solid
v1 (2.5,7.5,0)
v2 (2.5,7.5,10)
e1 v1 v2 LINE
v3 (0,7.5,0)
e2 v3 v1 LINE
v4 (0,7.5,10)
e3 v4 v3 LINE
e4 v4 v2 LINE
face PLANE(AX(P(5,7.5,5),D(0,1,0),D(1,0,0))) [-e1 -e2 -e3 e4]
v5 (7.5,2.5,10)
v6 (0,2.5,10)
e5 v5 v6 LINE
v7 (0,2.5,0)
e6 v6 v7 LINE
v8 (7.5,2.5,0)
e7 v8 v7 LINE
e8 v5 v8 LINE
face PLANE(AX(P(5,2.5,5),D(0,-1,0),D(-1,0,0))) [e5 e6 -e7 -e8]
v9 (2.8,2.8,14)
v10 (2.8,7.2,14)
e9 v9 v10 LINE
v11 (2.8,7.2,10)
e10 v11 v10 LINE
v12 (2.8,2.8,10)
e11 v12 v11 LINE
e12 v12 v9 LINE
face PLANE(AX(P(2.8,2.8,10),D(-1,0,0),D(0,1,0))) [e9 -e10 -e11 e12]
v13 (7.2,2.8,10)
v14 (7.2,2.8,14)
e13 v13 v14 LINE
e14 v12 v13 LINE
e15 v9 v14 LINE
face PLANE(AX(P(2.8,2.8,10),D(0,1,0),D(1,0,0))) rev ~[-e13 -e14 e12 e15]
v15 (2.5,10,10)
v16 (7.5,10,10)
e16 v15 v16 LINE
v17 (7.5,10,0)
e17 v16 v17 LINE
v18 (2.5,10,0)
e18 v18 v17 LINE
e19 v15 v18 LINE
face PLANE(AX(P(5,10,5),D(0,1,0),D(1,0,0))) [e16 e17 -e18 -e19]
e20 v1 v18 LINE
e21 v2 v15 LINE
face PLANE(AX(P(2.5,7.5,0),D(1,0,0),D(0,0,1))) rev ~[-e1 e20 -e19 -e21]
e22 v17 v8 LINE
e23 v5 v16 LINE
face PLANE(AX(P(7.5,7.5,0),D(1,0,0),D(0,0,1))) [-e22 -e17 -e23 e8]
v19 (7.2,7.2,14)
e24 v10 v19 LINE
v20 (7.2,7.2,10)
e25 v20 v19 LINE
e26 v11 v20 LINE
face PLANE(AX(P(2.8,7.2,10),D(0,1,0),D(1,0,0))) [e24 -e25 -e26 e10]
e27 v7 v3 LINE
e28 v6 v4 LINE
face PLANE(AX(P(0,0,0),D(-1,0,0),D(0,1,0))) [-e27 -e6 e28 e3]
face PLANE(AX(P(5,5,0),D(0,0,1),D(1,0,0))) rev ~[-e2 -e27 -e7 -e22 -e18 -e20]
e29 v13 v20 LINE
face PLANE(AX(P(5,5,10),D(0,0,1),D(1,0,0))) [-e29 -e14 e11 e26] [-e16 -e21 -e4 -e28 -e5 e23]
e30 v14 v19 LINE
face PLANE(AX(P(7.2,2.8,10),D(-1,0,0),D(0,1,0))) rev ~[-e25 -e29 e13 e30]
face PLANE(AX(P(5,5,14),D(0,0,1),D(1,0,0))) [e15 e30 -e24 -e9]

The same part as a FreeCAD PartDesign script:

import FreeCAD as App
import Part
import Sketcher
Q = App.Units.Quantity

doc = App.newDocument("Part")
params = doc.addObject("Spreadsheet::Sheet", "Params")
for row, (alias, value) in enumerate([
    ("sketch1_width", "10 mm"),
    ("pad1_length", "10 mm"),
    ("sketch2_width", "4.4 mm"),
    ("pad2_length", "4 mm"),
    ("sketch3_width", "10 mm"),
    ("pocket1_length", "2.5 mm"),
    ("sketch4_width", "10 mm"),
    ("pocket2_length", "2.5 mm"),
    ("sketch5_width", "5 mm"),
    ("sketch5_height", "10 mm"),
    ("pad3_length", "10 mm"),
    ("sketch6_width", "4.4 mm"),
    ("pad4_length", "4 mm"),
    ("sketch7_width", "4.4 mm"),
    ("pocket3_length", "5 mm"),
    ("sketch8_width", "5 mm"),
    ("sketch8_height", "10 mm"),
    ("pocket4_length", "7.5 mm"),
    ("sketch9_height", "10 mm"),
    ("sketch9_width", "2.5 mm"),
    ("pocket5_length", "5 mm"),
], start=1):
    params.set(f"A{row}", alias)
    params.set(f"B{row}", "=" + value)
    params.setAlias(f"B{row}", alias)

body = doc.addObject("PartDesign::Body", "Body")

# Sketch on XY plane
sketch1 = doc.addObject("Sketcher::SketchObject", "Sketch")
body.addObject(sketch1)
sketch1.AttachmentSupport = (doc.XY_Plane, [""])
sketch1.MapMode = "FlatFace"
sketch1.addGeometry(Part.LineSegment(App.Vector(0, 10, 0), App.Vector(0, 0, 0)), False)
sketch1.addGeometry(Part.LineSegment(App.Vector(0, 0, 0), App.Vector(10, 0, 0)), False)
sketch1.addGeometry(Part.LineSegment(App.Vector(10, 0, 0), App.Vector(10, 10, 0)), False)
sketch1.addGeometry(Part.LineSegment(App.Vector(10, 10, 0), App.Vector(0, 10, 0)), False)
sketch1.addConstraint(Sketcher.Constraint("Coincident", 0, 2, 1, 1))
sketch1.addConstraint(Sketcher.Constraint("Coincident", 1, 2, 2, 1))
sketch1.addConstraint(Sketcher.Constraint("Coincident", 2, 2, 3, 1))
sketch1.addConstraint(Sketcher.Constraint("Coincident", 3, 2, 0, 1))
sketch1.addConstraint(Sketcher.Constraint("Vertical", 0))
sketch1.addConstraint(Sketcher.Constraint("Horizontal", 1))
sketch1.addConstraint(Sketcher.Constraint("Vertical", 2))
sketch1.addConstraint(Sketcher.Constraint("Horizontal", 3))
sketch1.addConstraint(Sketcher.Constraint("Coincident", 0, 2, -1, 1))
sketch1.addConstraint(Sketcher.Constraint("Equal", 3, 0))
sketch1.addConstraint(Sketcher.Constraint("DistanceX", 1, 1, 1, 2, Q("10 mm")))
sketch1.setExpression("Constraints[10]", "Params.sketch1_width")
pad1 = doc.addObject("PartDesign::Pad", "Pad")
body.addObject(pad1)
pad1.Profile = sketch1
pad1.setExpression("Length", "Params.pad1_length")

# Sketch on XY plane
sketch2 = doc.addObject("Sketcher::SketchObject", "Sketch001")
body.addObject(sketch2)
sketch2.AttachmentSupport = (doc.XY_Plane, [""])
sketch2.MapMode = "FlatFace"
sketch2.AttachmentOffset = App.Placement(App.Vector(0, 0, 10), App.Rotation())
sketch2.addGeometry(Part.LineSegment(App.Vector(2.8, 7.2, 0), App.Vector(2.8, 2.8, 0)), False)
sketch2.addGeometry(Part.LineSegment(App.Vector(2.8, 2.8, 0), App.Vector(7.2, 2.8, 0)), False)
sketch2.addGeometry(Part.LineSegment(App.Vector(7.2, 2.8, 0), App.Vector(7.2, 7.2, 0)), False)
sketch2.addGeometry(Part.LineSegment(App.Vector(7.2, 7.2, 0), App.Vector(2.8, 7.2, 0)), False)
sketch2.addConstraint(Sketcher.Constraint("Coincident", 0, 2, 1, 1))
sketch2.addConstraint(Sketcher.Constraint("Coincident", 1, 2, 2, 1))
sketch2.addConstraint(Sketcher.Constraint("Coincident", 2, 2, 3, 1))
sketch2.addConstraint(Sketcher.Constraint("Coincident", 3, 2, 0, 1))
sketch2.addConstraint(Sketcher.Constraint("Vertical", 0))
sketch2.addConstraint(Sketcher.Constraint("Horizontal", 1))
sketch2.addConstraint(Sketcher.Constraint("Vertical", 2))
sketch2.addConstraint(Sketcher.Constraint("Horizontal", 3))
sketch2.addConstraint(Sketcher.Constraint("Equal", 3, 0))
sketch2.addConstraint(Sketcher.Constraint("DistanceX", 1, 1, 1, 2, Q("4.4 mm")))
sketch2.addConstraint(Sketcher.Constraint("DistanceX", -1, 1, 0, 2, Q("2.8 mm")))
sketch2.addConstraint(Sketcher.Constraint("DistanceY", -1, 1, 0, 2, Q("2.8 mm")))
sketch2.setExpression("Constraints[9]", "Params.sketch2_width")
pad2 = doc.addObject("PartDesign::Pad", "Pad001")
body.addObject(pad2)
pad2.Profile = sketch2
pad2.setExpression("Length", "Params.pad2_length")

# Sketch on XZ plane
sketch3 = doc.addObject("Sketcher::SketchObject", "Sketch002")
body.addObject(sketch3)
sketch3.AttachmentSupport = (doc.XZ_Plane, [""])
sketch3.MapMode = "FlatFace"
sketch3.AttachmentOffset = App.Placement(App.Vector(0, 0, -10), App.Rotation())
sketch3.addGeometry(Part.LineSegment(App.Vector(0, 0, 0), App.Vector(0, 10, 0)), False)
sketch3.addGeometry(Part.LineSegment(App.Vector(0, 10, 0), App.Vector(10, 10, 0)), False)
sketch3.addGeometry(Part.LineSegment(App.Vector(10, 10, 0), App.Vector(10, 0, 0)), False)
sketch3.addGeometry(Part.LineSegment(App.Vector(10, 0, 0), App.Vector(0, 0, 0)), False)
sketch3.addConstraint(Sketcher.Constraint("Coincident", 0, 2, 1, 1))
sketch3.addConstraint(Sketcher.Constraint("Coincident", 1, 2, 2, 1))
sketch3.addConstraint(Sketcher.Constraint("Coincident", 2, 2, 3, 1))
sketch3.addConstraint(Sketcher.Constraint("Coincident", 3, 2, 0, 1))
sketch3.addConstraint(Sketcher.Constraint("Vertical", 0))
sketch3.addConstraint(Sketcher.Constraint("Horizontal", 1))
sketch3.addConstraint(Sketcher.Constraint("Vertical", 2))
sketch3.addConstraint(Sketcher.Constraint("Horizontal", 3))
sketch3.addConstraint(Sketcher.Constraint("Coincident", 3, 2, -1, 1))
sketch3.addConstraint(Sketcher.Constraint("Equal", 3, 0))
sketch3.addConstraint(Sketcher.Constraint("DistanceX", 1, 1, 1, 2, Q("10 mm")))
sketch3.setExpression("Constraints[10]", "Params.sketch3_width")
pocket1 = doc.addObject("PartDesign::Pocket", "Pocket")
body.addObject(pocket1)
pocket1.Profile = sketch3
pocket1.setExpression("Length", "Params.pocket1_length")
pocket1.Reversed = True

# Sketch on XZ plane
sketch4 = doc.addObject("Sketcher::SketchObject", "Sketch003")
body.addObject(sketch4)
sketch4.AttachmentSupport = (doc.XZ_Plane, [""])
sketch4.MapMode = "FlatFace"
sketch4.addGeometry(Part.LineSegment(App.Vector(10, 0, 0), App.Vector(10, 10, 0)), False)
sketch4.addGeometry(Part.LineSegment(App.Vector(10, 10, 0), App.Vector(0, 10, 0)), False)
sketch4.addGeometry(Part.LineSegment(App.Vector(0, 10, 0), App.Vector(0, 0, 0)), False)
sketch4.addGeometry(Part.LineSegment(App.Vector(0, 0, 0), App.Vector(10, 0, 0)), False)
sketch4.addConstraint(Sketcher.Constraint("Coincident", 0, 2, 1, 1))
sketch4.addConstraint(Sketcher.Constraint("Coincident", 1, 2, 2, 1))
sketch4.addConstraint(Sketcher.Constraint("Coincident", 2, 2, 3, 1))
sketch4.addConstraint(Sketcher.Constraint("Coincident", 3, 2, 0, 1))
sketch4.addConstraint(Sketcher.Constraint("Vertical", 0))
sketch4.addConstraint(Sketcher.Constraint("Horizontal", 1))
sketch4.addConstraint(Sketcher.Constraint("Vertical", 2))
sketch4.addConstraint(Sketcher.Constraint("Horizontal", 3))
sketch4.addConstraint(Sketcher.Constraint("Coincident", 2, 2, -1, 1))
sketch4.addConstraint(Sketcher.Constraint("Equal", 3, 0))
sketch4.addConstraint(Sketcher.Constraint("DistanceX", 1, 2, 1, 1, Q("10 mm")))
sketch4.setExpression("Constraints[10]", "Params.sketch4_width")
pocket2 = doc.addObject("PartDesign::Pocket", "Pocket001")
body.addObject(pocket2)
pocket2.Profile = sketch4
pocket2.setExpression("Length", "Params.pocket2_length")

# Sketch on XZ plane
sketch5 = doc.addObject("Sketcher::SketchObject", "Sketch004")
body.addObject(sketch5)
sketch5.AttachmentSupport = (doc.XZ_Plane, [""])
sketch5.MapMode = "FlatFace"
sketch5.AttachmentOffset = App.Placement(App.Vector(0, 0, -7.5), App.Rotation())
sketch5.addGeometry(Part.LineSegment(App.Vector(7.5, 10, 0), App.Vector(7.5, 0, 0)), False)
sketch5.addGeometry(Part.LineSegment(App.Vector(7.5, 0, 0), App.Vector(2.5, 0, 0)), False)
sketch5.addGeometry(Part.LineSegment(App.Vector(2.5, 0, 0), App.Vector(2.5, 10, 0)), False)
sketch5.addGeometry(Part.LineSegment(App.Vector(2.5, 10, 0), App.Vector(7.5, 10, 0)), False)
sketch5.addConstraint(Sketcher.Constraint("Coincident", 0, 2, 1, 1))
sketch5.addConstraint(Sketcher.Constraint("Coincident", 1, 2, 2, 1))
sketch5.addConstraint(Sketcher.Constraint("Coincident", 2, 2, 3, 1))
sketch5.addConstraint(Sketcher.Constraint("Coincident", 3, 2, 0, 1))
sketch5.addConstraint(Sketcher.Constraint("Vertical", 0))
sketch5.addConstraint(Sketcher.Constraint("Horizontal", 1))
sketch5.addConstraint(Sketcher.Constraint("Vertical", 2))
sketch5.addConstraint(Sketcher.Constraint("Horizontal", 3))
sketch5.addConstraint(Sketcher.Constraint("PointOnObject", 0, 2, -1))
sketch5.addConstraint(Sketcher.Constraint("DistanceX", 1, 2, 1, 1, Q("5 mm")))
sketch5.addConstraint(Sketcher.Constraint("DistanceY", 0, 2, 0, 1, Q("10 mm")))
sketch5.addConstraint(Sketcher.Constraint("DistanceX", -1, 1, 0, 2, Q("7.5 mm")))
sketch5.setExpression("Constraints[9]", "Params.sketch5_width")
sketch5.setExpression("Constraints[10]", "Params.sketch5_height")
pad3 = doc.addObject("PartDesign::Pad", "Pad002")
body.addObject(pad3)
pad3.Profile = sketch5
pad3.setExpression("Length", "Params.pad3_length")
pad3.Reversed = True

# Sketch on XY plane
sketch6 = doc.addObject("Sketcher::SketchObject", "Sketch005")
body.addObject(sketch6)
sketch6.AttachmentSupport = (doc.XY_Plane, [""])
sketch6.MapMode = "FlatFace"
sketch6.AttachmentOffset = App.Placement(App.Vector(0, 0, 10), App.Rotation())
sketch6.addGeometry(Part.LineSegment(App.Vector(2.8, 14.7, 0), App.Vector(2.8, 10.3, 0)), False)
sketch6.addGeometry(Part.LineSegment(App.Vector(2.8, 10.3, 0), App.Vector(7.2, 10.3, 0)), False)
sketch6.addGeometry(Part.LineSegment(App.Vector(7.2, 10.3, 0), App.Vector(7.2, 14.7, 0)), False)
sketch6.addGeometry(Part.LineSegment(App.Vector(7.2, 14.7, 0), App.Vector(2.8, 14.7, 0)), False)
sketch6.addConstraint(Sketcher.Constraint("Coincident", 0, 2, 1, 1))
sketch6.addConstraint(Sketcher.Constraint("Coincident", 1, 2, 2, 1))
sketch6.addConstraint(Sketcher.Constraint("Coincident", 2, 2, 3, 1))
sketch6.addConstraint(Sketcher.Constraint("Coincident", 3, 2, 0, 1))
sketch6.addConstraint(Sketcher.Constraint("Vertical", 0))
sketch6.addConstraint(Sketcher.Constraint("Horizontal", 1))
sketch6.addConstraint(Sketcher.Constraint("Vertical", 2))
sketch6.addConstraint(Sketcher.Constraint("Horizontal", 3))
sketch6.addConstraint(Sketcher.Constraint("Equal", 3, 0))
sketch6.addConstraint(Sketcher.Constraint("DistanceX", 1, 1, 1, 2, Q("4.4 mm")))
sketch6.addConstraint(Sketcher.Constraint("DistanceX", -1, 1, 0, 2, Q("2.8 mm")))
sketch6.addConstraint(Sketcher.Constraint("DistanceY", -1, 1, 0, 2, Q("10.3 mm")))
sketch6.setExpression("Constraints[9]", "Params.sketch6_width")
pad4 = doc.addObject("PartDesign::Pad", "Pad003")
body.addObject(pad4)
pad4.Profile = sketch6
pad4.setExpression("Length", "Params.pad4_length")

# Sketch on XY plane
sketch7 = doc.addObject("Sketcher::SketchObject", "Sketch006")
body.addObject(sketch7)
sketch7.AttachmentSupport = (doc.XY_Plane, [""])
sketch7.MapMode = "FlatFace"
sketch7.AttachmentOffset = App.Placement(App.Vector(0, 0, 14), App.Rotation())
sketch7.addGeometry(Part.LineSegment(App.Vector(2.8, 10.3, 0), App.Vector(7.2, 10.3, 0)), False)
sketch7.addGeometry(Part.LineSegment(App.Vector(7.2, 10.3, 0), App.Vector(7.2, 14.7, 0)), False)
sketch7.addGeometry(Part.LineSegment(App.Vector(7.2, 14.7, 0), App.Vector(2.8, 14.7, 0)), False)
sketch7.addGeometry(Part.LineSegment(App.Vector(2.8, 14.7, 0), App.Vector(2.8, 10.3, 0)), False)
sketch7.addConstraint(Sketcher.Constraint("Coincident", 0, 2, 1, 1))
sketch7.addConstraint(Sketcher.Constraint("Coincident", 1, 2, 2, 1))
sketch7.addConstraint(Sketcher.Constraint("Coincident", 2, 2, 3, 1))
sketch7.addConstraint(Sketcher.Constraint("Coincident", 3, 2, 0, 1))
sketch7.addConstraint(Sketcher.Constraint("Horizontal", 0))
sketch7.addConstraint(Sketcher.Constraint("Vertical", 1))
sketch7.addConstraint(Sketcher.Constraint("Horizontal", 2))
sketch7.addConstraint(Sketcher.Constraint("Vertical", 3))
sketch7.addConstraint(Sketcher.Constraint("Equal", 2, 1))
sketch7.addConstraint(Sketcher.Constraint("DistanceX", 0, 1, 0, 2, Q("4.4 mm")))
sketch7.addConstraint(Sketcher.Constraint("DistanceX", -1, 1, 0, 2, Q("7.2 mm")))
sketch7.addConstraint(Sketcher.Constraint("DistanceY", -1, 1, 0, 2, Q("10.3 mm")))
sketch7.setExpression("Constraints[9]", "Params.sketch7_width")
pocket3 = doc.addObject("PartDesign::Pocket", "Pocket002")
body.addObject(pocket3)
pocket3.Profile = sketch7
pocket3.setExpression("Length", "Params.pocket3_length")

# Sketch on XZ plane
sketch8 = doc.addObject("Sketcher::SketchObject", "Sketch007")
body.addObject(sketch8)
sketch8.AttachmentSupport = (doc.XZ_Plane, [""])
sketch8.MapMode = "FlatFace"
sketch8.AttachmentOffset = App.Placement(App.Vector(0, 0, -17.5), App.Rotation())
sketch8.addGeometry(Part.LineSegment(App.Vector(2.5, 0, 0), App.Vector(2.5, 10, 0)), False)
sketch8.addGeometry(Part.LineSegment(App.Vector(2.5, 10, 0), App.Vector(7.5, 10, 0)), False)
sketch8.addGeometry(Part.LineSegment(App.Vector(7.5, 10, 0), App.Vector(7.5, 0, 0)), False)
sketch8.addGeometry(Part.LineSegment(App.Vector(7.5, 0, 0), App.Vector(2.5, 0, 0)), False)
sketch8.addConstraint(Sketcher.Constraint("Coincident", 0, 2, 1, 1))
sketch8.addConstraint(Sketcher.Constraint("Coincident", 1, 2, 2, 1))
sketch8.addConstraint(Sketcher.Constraint("Coincident", 2, 2, 3, 1))
sketch8.addConstraint(Sketcher.Constraint("Coincident", 3, 2, 0, 1))
sketch8.addConstraint(Sketcher.Constraint("Vertical", 0))
sketch8.addConstraint(Sketcher.Constraint("Horizontal", 1))
sketch8.addConstraint(Sketcher.Constraint("Vertical", 2))
sketch8.addConstraint(Sketcher.Constraint("Horizontal", 3))
sketch8.addConstraint(Sketcher.Constraint("PointOnObject", 2, 2, -1))
sketch8.addConstraint(Sketcher.Constraint("DistanceX", 1, 1, 1, 2, Q("5 mm")))
sketch8.addConstraint(Sketcher.Constraint("DistanceY", 0, 1, 0, 2, Q("10 mm")))
sketch8.addConstraint(Sketcher.Constraint("DistanceX", -1, 1, 0, 2, Q("2.5 mm")))
sketch8.setExpression("Constraints[9]", "Params.sketch8_width")
sketch8.setExpression("Constraints[10]", "Params.sketch8_height")
pocket4 = doc.addObject("PartDesign::Pocket", "Pocket003")
body.addObject(pocket4)
pocket4.Profile = sketch8
pocket4.setExpression("Length", "Params.pocket4_length")
pocket4.Reversed = True

# Sketch on XZ plane
sketch9 = doc.addObject("Sketcher::SketchObject", "Sketch008")
body.addObject(sketch9)
sketch9.AttachmentSupport = (doc.XZ_Plane, [""])
sketch9.MapMode = "FlatFace"
sketch9.AttachmentOffset = App.Placement(App.Vector(0, 0, -7.5), App.Rotation())
sketch9.addGeometry(Part.LineSegment(App.Vector(7.5, 0, 0), App.Vector(7.5, 10, 0)), False)
sketch9.addGeometry(Part.LineSegment(App.Vector(7.5, 10, 0), App.Vector(10, 10, 0)), False)
sketch9.addGeometry(Part.LineSegment(App.Vector(10, 10, 0), App.Vector(10, 0, 0)), False)
sketch9.addGeometry(Part.LineSegment(App.Vector(10, 0, 0), App.Vector(7.5, 0, 0)), False)
sketch9.addConstraint(Sketcher.Constraint("Coincident", 0, 2, 1, 1))
sketch9.addConstraint(Sketcher.Constraint("Coincident", 1, 2, 2, 1))
sketch9.addConstraint(Sketcher.Constraint("Coincident", 2, 2, 3, 1))
sketch9.addConstraint(Sketcher.Constraint("Coincident", 3, 2, 0, 1))
sketch9.addConstraint(Sketcher.Constraint("Vertical", 0))
sketch9.addConstraint(Sketcher.Constraint("Horizontal", 1))
sketch9.addConstraint(Sketcher.Constraint("Vertical", 2))
sketch9.addConstraint(Sketcher.Constraint("Horizontal", 3))
sketch9.addConstraint(Sketcher.Constraint("PointOnObject", 2, 2, -1))
sketch9.addConstraint(Sketcher.Constraint("DistanceY", 0, 1, 0, 2, Q("10 mm")))
sketch9.addConstraint(Sketcher.Constraint("DistanceX", 1, 1, 1, 2, Q("2.5 mm")))
sketch9.addConstraint(Sketcher.Constraint("DistanceX", -1, 1, 1, 2, Q("10 mm")))
sketch9.setExpression("Constraints[9]", "Params.sketch9_height")
sketch9.setExpression("Constraints[10]", "Params.sketch9_width")
pocket5 = doc.addObject("PartDesign::Pocket", "Pocket004")
body.addObject(pocket5)
pocket5.Profile = sketch9
pocket5.setExpression("Length", "Params.pocket5_length")
pocket5.Reversed = True

doc.recompute()
